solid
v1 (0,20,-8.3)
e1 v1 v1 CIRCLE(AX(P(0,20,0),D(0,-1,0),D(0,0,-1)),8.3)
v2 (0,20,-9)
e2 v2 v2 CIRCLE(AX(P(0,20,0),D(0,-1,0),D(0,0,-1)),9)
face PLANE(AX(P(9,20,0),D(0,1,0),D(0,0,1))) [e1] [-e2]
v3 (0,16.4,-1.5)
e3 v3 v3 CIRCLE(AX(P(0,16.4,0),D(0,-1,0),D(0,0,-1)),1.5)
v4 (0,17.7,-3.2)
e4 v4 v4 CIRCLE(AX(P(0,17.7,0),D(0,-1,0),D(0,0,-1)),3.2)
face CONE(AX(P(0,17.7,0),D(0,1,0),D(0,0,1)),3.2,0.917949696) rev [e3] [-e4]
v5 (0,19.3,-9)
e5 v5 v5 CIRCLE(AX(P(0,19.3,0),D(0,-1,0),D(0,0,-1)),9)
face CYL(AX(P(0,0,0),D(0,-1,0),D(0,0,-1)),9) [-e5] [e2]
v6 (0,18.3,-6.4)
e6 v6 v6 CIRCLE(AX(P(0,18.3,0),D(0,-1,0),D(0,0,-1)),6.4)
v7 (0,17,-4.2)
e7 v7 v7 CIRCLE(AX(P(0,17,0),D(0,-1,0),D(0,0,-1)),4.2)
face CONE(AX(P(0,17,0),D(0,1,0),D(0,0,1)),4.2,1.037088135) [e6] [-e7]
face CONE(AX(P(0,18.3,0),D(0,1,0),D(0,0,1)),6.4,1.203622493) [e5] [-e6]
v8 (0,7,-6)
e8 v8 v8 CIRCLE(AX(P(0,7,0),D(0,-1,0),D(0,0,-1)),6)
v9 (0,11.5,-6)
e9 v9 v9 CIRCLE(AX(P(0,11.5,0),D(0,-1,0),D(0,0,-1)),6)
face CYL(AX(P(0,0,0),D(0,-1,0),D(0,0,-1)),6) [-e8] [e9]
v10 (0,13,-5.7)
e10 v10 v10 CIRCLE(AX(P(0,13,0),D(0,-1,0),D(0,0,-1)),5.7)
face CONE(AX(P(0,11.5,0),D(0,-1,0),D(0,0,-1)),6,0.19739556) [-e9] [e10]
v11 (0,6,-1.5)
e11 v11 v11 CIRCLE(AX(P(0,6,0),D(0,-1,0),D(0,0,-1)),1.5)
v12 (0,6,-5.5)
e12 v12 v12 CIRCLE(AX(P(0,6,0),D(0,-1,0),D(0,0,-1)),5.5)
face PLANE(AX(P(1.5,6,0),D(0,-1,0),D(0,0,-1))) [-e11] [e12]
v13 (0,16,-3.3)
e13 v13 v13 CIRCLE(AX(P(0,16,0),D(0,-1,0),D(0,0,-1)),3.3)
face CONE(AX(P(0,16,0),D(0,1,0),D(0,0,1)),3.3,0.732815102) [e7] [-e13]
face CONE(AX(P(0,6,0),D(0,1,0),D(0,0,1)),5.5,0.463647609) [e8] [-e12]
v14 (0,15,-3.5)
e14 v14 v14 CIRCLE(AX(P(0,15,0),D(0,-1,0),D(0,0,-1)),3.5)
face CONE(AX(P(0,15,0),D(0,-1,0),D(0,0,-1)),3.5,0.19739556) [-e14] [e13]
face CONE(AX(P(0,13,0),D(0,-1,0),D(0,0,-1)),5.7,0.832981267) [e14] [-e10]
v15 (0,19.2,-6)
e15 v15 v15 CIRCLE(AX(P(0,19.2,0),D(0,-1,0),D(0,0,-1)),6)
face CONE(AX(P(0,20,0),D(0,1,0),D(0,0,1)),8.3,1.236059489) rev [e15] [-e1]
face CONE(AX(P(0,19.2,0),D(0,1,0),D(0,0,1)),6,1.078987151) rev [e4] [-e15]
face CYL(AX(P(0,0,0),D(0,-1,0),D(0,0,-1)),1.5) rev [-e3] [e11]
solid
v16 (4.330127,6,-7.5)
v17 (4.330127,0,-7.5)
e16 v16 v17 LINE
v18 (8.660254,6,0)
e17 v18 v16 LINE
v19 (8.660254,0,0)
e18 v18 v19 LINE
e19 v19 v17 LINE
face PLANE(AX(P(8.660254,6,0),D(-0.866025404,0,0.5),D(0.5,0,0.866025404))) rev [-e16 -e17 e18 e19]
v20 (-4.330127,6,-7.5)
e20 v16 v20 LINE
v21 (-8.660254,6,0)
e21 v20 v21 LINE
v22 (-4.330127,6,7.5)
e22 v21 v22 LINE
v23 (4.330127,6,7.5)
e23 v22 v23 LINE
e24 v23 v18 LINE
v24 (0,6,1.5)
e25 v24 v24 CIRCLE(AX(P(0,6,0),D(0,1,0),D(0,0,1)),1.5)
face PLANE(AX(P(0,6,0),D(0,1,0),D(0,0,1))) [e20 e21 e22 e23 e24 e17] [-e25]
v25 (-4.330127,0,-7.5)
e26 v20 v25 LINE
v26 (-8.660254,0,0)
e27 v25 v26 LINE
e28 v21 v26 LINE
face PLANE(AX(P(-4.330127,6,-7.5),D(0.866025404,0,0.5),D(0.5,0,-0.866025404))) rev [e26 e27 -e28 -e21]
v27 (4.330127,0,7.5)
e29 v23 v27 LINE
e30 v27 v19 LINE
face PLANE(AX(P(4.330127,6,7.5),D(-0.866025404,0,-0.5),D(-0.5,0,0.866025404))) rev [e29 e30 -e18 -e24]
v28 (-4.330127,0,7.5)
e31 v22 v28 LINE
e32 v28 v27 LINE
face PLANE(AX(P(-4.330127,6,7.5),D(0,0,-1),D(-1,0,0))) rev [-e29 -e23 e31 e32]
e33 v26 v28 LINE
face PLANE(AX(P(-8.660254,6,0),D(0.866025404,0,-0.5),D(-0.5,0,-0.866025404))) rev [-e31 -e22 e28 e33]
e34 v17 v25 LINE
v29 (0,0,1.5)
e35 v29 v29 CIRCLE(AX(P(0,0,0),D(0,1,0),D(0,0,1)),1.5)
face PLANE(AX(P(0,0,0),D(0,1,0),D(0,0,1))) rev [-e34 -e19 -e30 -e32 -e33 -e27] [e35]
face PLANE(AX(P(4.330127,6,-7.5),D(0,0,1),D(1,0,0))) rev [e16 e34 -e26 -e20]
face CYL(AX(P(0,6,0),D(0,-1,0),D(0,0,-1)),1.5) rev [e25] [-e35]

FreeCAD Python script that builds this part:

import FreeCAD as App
import Part
import Sketcher
from FreeCAD import Vector
Q = App.Units.Quantity

doc = App.newDocument("Part")
params = doc.addObject("Spreadsheet::Sheet", "Params")
for row, (alias, value) in enumerate([
    ("sketch1_diameter", "3 mm"),
    ("pad1_length", "6 mm"),
    ("sketch2_width", "4 mm"),
    ("sketch2_width2", "0.7 mm"),
    ("sketch2_height", "4.5 mm"),
    ("sketch2_height2", "10.4 mm"),
    ("revolution_angle", "360 deg"),
], start=1):
    params.set(f"A{row}", alias)
    params.set(f"B{row}", "=" + value)
    params.setAlias(f"B{row}", alias)

body = doc.addObject("PartDesign::Body", "Body")

sketch1 = body.newObject("Sketcher::SketchObject", "Sketch")
sketch1.AttachmentSupport = (doc.getObject("XZ_Plane"), [""])
sketch1.MapMode = "FlatFace"
sketch1.addGeometry(Part.LineSegment(Vector(8.660254, 0, 0), Vector(4.330127, -7.5, 0)), False)
sketch1.addGeometry(Part.LineSegment(Vector(4.330127, -7.5, 0), Vector(-4.330127, -7.5, 0)), False)
sketch1.addGeometry(Part.LineSegment(Vector(-4.330127, -7.5, 0), Vector(-8.660254, 0, 0)), False)
sketch1.addGeometry(Part.LineSegment(Vector(-8.660254, 0, 0), Vector(-4.330127, 7.5, 0)), False)
sketch1.addGeometry(Part.LineSegment(Vector(-4.330127, 7.5, 0), Vector(4.330127, 7.5, 0)), False)
sketch1.addGeometry(Part.LineSegment(Vector(4.330127, 7.5, 0), Vector(8.660254, 0, 0)), False)
sketch1.addGeometry(Part.Circle(Vector(0, 0, 0), Vector(0, 0, 1), 1.5), False)
sketch1.addConstraint(Sketcher.Constraint("Coincident", 0, 2, 1, 1))
sketch1.addConstraint(Sketcher.Constraint("Coincident", 1, 2, 2, 1))
sketch1.addConstraint(Sketcher.Constraint("Coincident", 2, 2, 3, 1))
sketch1.addConstraint(Sketcher.Constraint("Coincident", 3, 2, 4, 1))
sketch1.addConstraint(Sketcher.Constraint("Coincident", 4, 2, 5, 1))
sketch1.addConstraint(Sketcher.Constraint("Coincident", 5, 2, 0, 1))
sketch1.addConstraint(Sketcher.Constraint("Horizontal", 1))
sketch1.addConstraint(Sketcher.Constraint("Horizontal", 4))
sketch1.addConstraint(Sketcher.Constraint("Coincident", 6, 3, -1, 1))
sketch1.addConstraint(Sketcher.Constraint("Symmetric", 0, 2, 3, 2, -1, 1))
sketch1.addConstraint(Sketcher.Constraint("Symmetric", 2, 2, 5, 2, -1, 1))
sketch1.addConstraint(Sketcher.Constraint("PointOnObject", 2, 2, -1))
sketch1.addConstraint(Sketcher.Constraint("Parallel", 2, 5))
sketch1.addConstraint(Sketcher.Constraint("Vertical", 1, 2, 3, 2))
sketch1.addConstraint(Sketcher.Constraint("Diameter", 6, 3.0))
sketch1.addConstraint(Sketcher.Constraint("Angle", 0, Q("-120 deg")))
sketch1.addConstraint(Sketcher.Constraint("DistanceY", 1, 2, 3, 2, 15.0))
sketch1.addConstraint(Sketcher.Constraint("DistanceX", 1, 2, 1, 1, 8.660254))
sketch1.setExpression("Constraints[14]", "Params.sketch1_diameter")
pad1 = body.newObject("PartDesign::Pad", "Pad")
pad1.Profile = sketch1
pad1.setExpression("Length", "Params.pad1_length")
pad1.Reversed = True
body2 = doc.addObject("PartDesign::Body", "Body001")

sketch2 = body2.newObject("Sketcher::SketchObject", "Sketch001")
sketch2.AttachmentSupport = (doc.getObject("XY_Plane001"), [""])
sketch2.MapMode = "FlatFace"
sketch2.addGeometry(Part.LineSegment(Vector(1.5, 6, 0), Vector(5.5, 6, 0)), False)
sketch2.addGeometry(Part.LineSegment(Vector(5.5, 6, 0), Vector(6, 7, 0)), False)
sketch2.addGeometry(Part.LineSegment(Vector(6, 7, 0), Vector(6, 11.5, 0)), False)
sketch2.addGeometry(Part.LineSegment(Vector(6, 11.5, 0), Vector(5.7, 13, 0)), False)
sketch2.addGeometry(Part.LineSegment(Vector(5.7, 13, 0), Vector(3.5, 15, 0)), False)
sketch2.addGeometry(Part.LineSegment(Vector(3.5, 15, 0), Vector(3.3, 16, 0)), False)
sketch2.addGeometry(Part.LineSegment(Vector(3.3, 16, 0), Vector(4.2, 17, 0)), False)
sketch2.addGeometry(Part.LineSegment(Vector(4.2, 17, 0), Vector(6.4, 18.3, 0)), False)
sketch2.addGeometry(Part.LineSegment(Vector(6.4, 18.3, 0), Vector(9, 19.3, 0)), False)
sketch2.addGeometry(Part.LineSegment(Vector(9, 19.3, 0), Vector(9, 20, 0)), False)
sketch2.addGeometry(Part.LineSegment(Vector(9, 20, 0), Vector(8.3, 20, 0)), False)
sketch2.addGeometry(Part.LineSegment(Vector(8.3, 20, 0), Vector(6, 19.2, 0)), False)
sketch2.addGeometry(Part.LineSegment(Vector(6, 19.2, 0), Vector(3.2, 17.7, 0)), False)
sketch2.addGeometry(Part.LineSegment(Vector(3.2, 17.7, 0), Vector(1.5, 16.4, 0)), False)
sketch2.addGeometry(Part.LineSegment(Vector(1.5, 16.4, 0), Vector(1.5, 6, 0)), False)
sketch2.addConstraint(Sketcher.Constraint("Coincident", 0, 2, 1, 1))
sketch2.addConstraint(Sketcher.Constraint("Coincident", 1, 2, 2, 1))
sketch2.addConstraint(Sketcher.Constraint("Coincident", 2, 2, 3, 1))
sketch2.addConstraint(Sketcher.Constraint("Coincident", 3, 2, 4, 1))
sketch2.addConstraint(Sketcher.Constraint("Coincident", 4, 2, 5, 1))
sketch2.addConstraint(Sketcher.Constraint("Coincident", 5, 2, 6, 1))
sketch2.addConstraint(Sketcher.Constraint("Coincident", 6, 2, 7, 1))
sketch2.addConstraint(Sketcher.Constraint("Coincident", 7, 2, 8, 1))
sketch2.addConstraint(Sketcher.Constraint("Coincident", 8, 2, 9, 1))
sketch2.addConstraint(Sketcher.Constraint("Coincident", 9, 2, 10, 1))
sketch2.addConstraint(Sketcher.Constraint("Coincident", 10, 2, 11, 1))
sketch2.addConstraint(Sketcher.Constraint("Coincident", 11, 2, 12, 1))
sketch2.addConstraint(Sketcher.Constraint("Coincident", 12, 2, 13, 1))
sketch2.addConstraint(Sketcher.Constraint("Coincident", 13, 2, 14, 1))
sketch2.addConstraint(Sketcher.Constraint("Coincident", 14, 2, 0, 1))
sketch2.addConstraint(Sketcher.Constraint("Horizontal", 0))
sketch2.addConstraint(Sketcher.Constraint("Vertical", 2))
sketch2.addConstraint(Sketcher.Constraint("Vertical", 9))
sketch2.addConstraint(Sketcher.Constraint("Horizontal", 10))
sketch2.addConstraint(Sketcher.Constraint("Vertical", 14))
sketch2.addConstraint(Sketcher.Constraint("Parallel", 3, 5))
sketch2.addConstraint(Sketcher.Constraint("Vertical", 2, 2, 11, 2))
sketch2.addConstraint(Sketcher.Constraint("Equal", 10, 9))
sketch2.addConstraint(Sketcher.Constraint("DistanceX", 0, 1, 0, 2, 4.0))
sketch2.addConstraint(Sketcher.Constraint("DistanceX", 10, 2, 10, 1, 0.7))
sketch2.addConstraint(Sketcher.Constraint("DistanceY", 2, 1, 2, 2, 4.5))
sketch2.addConstraint(Sketcher.Constraint("DistanceY", 14, 2, 14, 1, 10.4))
sketch2.addConstraint(Sketcher.Constraint("DistanceY", -1, 1, 0, 2, 6.0))
sketch2.addConstraint(Sketcher.Constraint("DistanceX", -1, 1, 1, 2, 6.0))
sketch2.addConstraint(Sketcher.Constraint("DistanceY", -1, 1, 1, 2, 7.0))
sketch2.addConstraint(Sketcher.Constraint("DistanceY", -1, 1, 3, 2, 13.0))
sketch2.addConstraint(Sketcher.Constraint("DistanceY", -1, 1, 4, 2, 15.0))
sketch2.addConstraint(Sketcher.Constraint("DistanceY", -1, 1, 5, 2, 16.0))
sketch2.addConstraint(Sketcher.Constraint("DistanceY", -1, 1, 6, 2, 17.0))
sketch2.addConstraint(Sketcher.Constraint("DistanceX", -1, 1, 8, 2, 9.0))
sketch2.addConstraint(Sketcher.Constraint("DistanceY", -1, 1, 9, 2, 20.0))
sketch2.addConstraint(Sketcher.Constraint("DistanceX", 4, 2, 0, 2, 2.0))
sketch2.addConstraint(Sketcher.Constraint("DistanceY", 7, 2, 8, 2, 1.0))
sketch2.addConstraint(Sketcher.Constraint("DistanceX", 5, 2, 10, 2, 5.0))
sketch2.addConstraint(Sketcher.Constraint("DistanceX", 12, 2, 6, 2, 1.0))
sketch2.addConstraint(Sketcher.Constraint("DistanceX", -1, 1, 0, 2, 5.5))
sketch2.addConstraint(Sketcher.Constraint("DistanceX", -1, 1, 6, 2, 4.2))
sketch2.addConstraint(Sketcher.Constraint("DistanceX", -1, 1, 7, 2, 6.4))
sketch2.addConstraint(Sketcher.Constraint("DistanceY", -1, 1, 11, 2, 19.2))
sketch2.addConstraint(Sketcher.Constraint("DistanceY", -1, 1, 12, 2, 17.7))
sketch2.setExpression("Constraints[23]", "Params.sketch2_width")
sketch2.setExpression("Constraints[24]", "Params.sketch2_width2")
sketch2.setExpression("Constraints[25]", "Params.sketch2_height")
sketch2.setExpression("Constraints[26]", "Params.sketch2_height2")
revolution = body2.newObject("PartDesign::Revolution", "Revolution")
revolution.Profile = sketch2
revolution.ReferenceAxis = (sketch2, ["V_Axis"])
revolution.setExpression("Angle", "Params.revolution_angle")

doc.recompute()
